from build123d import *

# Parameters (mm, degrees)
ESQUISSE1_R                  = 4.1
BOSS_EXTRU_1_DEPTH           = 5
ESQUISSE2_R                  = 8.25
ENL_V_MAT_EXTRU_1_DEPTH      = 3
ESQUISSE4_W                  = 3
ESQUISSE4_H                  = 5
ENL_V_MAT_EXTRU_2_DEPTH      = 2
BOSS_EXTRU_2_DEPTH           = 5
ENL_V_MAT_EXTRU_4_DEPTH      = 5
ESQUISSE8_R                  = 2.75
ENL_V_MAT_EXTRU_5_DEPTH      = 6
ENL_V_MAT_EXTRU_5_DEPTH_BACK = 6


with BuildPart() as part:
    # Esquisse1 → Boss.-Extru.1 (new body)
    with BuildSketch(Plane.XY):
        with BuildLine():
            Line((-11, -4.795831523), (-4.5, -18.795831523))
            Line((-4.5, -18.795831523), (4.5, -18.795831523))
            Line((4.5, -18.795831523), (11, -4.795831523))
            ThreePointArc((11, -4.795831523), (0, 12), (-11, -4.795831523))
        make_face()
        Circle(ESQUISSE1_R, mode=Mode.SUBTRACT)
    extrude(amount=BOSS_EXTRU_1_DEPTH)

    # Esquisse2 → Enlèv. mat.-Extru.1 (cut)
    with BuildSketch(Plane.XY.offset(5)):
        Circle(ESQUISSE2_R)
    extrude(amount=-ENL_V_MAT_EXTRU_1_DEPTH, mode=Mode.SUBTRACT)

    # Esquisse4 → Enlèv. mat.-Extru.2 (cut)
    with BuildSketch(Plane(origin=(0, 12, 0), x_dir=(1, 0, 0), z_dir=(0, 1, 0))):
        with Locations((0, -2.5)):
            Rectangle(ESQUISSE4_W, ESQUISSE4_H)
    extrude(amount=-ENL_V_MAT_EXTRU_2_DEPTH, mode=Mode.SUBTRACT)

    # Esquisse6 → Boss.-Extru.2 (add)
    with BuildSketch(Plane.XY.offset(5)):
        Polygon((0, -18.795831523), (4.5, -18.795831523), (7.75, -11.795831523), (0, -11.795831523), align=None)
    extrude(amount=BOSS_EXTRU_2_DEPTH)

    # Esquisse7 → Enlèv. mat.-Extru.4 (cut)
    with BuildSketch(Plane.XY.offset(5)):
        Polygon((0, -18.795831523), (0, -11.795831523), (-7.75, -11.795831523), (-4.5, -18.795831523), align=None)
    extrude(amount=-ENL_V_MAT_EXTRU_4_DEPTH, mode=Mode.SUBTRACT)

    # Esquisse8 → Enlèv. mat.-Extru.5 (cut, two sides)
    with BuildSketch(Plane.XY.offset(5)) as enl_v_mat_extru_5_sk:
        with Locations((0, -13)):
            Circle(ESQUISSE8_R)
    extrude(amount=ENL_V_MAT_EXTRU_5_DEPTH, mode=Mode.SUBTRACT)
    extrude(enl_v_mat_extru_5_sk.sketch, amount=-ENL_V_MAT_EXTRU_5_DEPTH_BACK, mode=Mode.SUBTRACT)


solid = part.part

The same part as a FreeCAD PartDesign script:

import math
import FreeCAD as App
import Part
import Sketcher
from FreeCAD import Vector


def add_polygon(sketch, points):
    """Adds a closed chain of lines whose ends are joined by coincident constraints."""
    first, n = sketch.GeometryCount, len(points)
    for a, b in zip(points, points[1:] + points[:1]):
        sketch.addGeometry(Part.LineSegment(App.Vector(*a, 0), App.Vector(*b, 0)), False)
    for i in range(n):
        sketch.addConstraint(Sketcher.Constraint("Coincident", first + i, 2, first + (i + 1) % n, 1))

doc = App.newDocument("Part")
body = doc.addObject("PartDesign::Body", "Body")

sketch1 = body.newObject("Sketcher::SketchObject", "Sketch")
sketch1.AttachmentSupport = (doc.getObject("XY_Plane"), [""])
sketch1.MapMode = "FlatFace"
sketch1.addGeometry([
    Part.LineSegment(Vector(-11, -4.8, 0), Vector(-4.5, -18.8, 0)),
    Part.LineSegment(Vector(-4.5, -18.8, 0), Vector(4.5, -18.8, 0)),
    Part.LineSegment(Vector(4.5, -18.8, 0), Vector(11, -4.8, 0)),
    Part.ArcOfCircle(Part.Circle(Vector(0, 0, 0), Vector(0, 0, 1), 12), math.radians(-24), math.radians(204)),
    Part.Circle(Vector(0, 0, 0), Vector(0, 0, 1), 4.1),
], False)
sketch1.addConstraint([
    Sketcher.Constraint("Coincident", 0, 2, 1, 1),
    Sketcher.Constraint("Coincident", 1, 2, 2, 1),
    Sketcher.Constraint("Coincident", 2, 2, 3, 1),
    Sketcher.Constraint("Coincident", 3, 2, 0, 1),
    Sketcher.Constraint("Horizontal", 1),
    Sketcher.Constraint("Coincident", 3, 3, -1, 1),
    Sketcher.Constraint("Coincident", 4, 3, -1, 1),
    Sketcher.Constraint("Horizontal", 2, 2, 3, 2),
    Sketcher.Constraint("Equal", 0, 2),
    Sketcher.Constraint("Radius", 3, 12.0),
    Sketcher.Constraint("Diameter", 4, 8.2),
    Sketcher.Constraint("DistanceX", 1, 1, 1, 2, 9.0),
    Sketcher.Constraint("DistanceX", -1, 1, 2, 2, 11.0),
    Sketcher.Constraint("DistanceY", 1, 2, 2, 2, 14.0),
])
pad1 = body.newObject("PartDesign::Pad", "Pad")
pad1.Profile = sketch1
pad1.Length = 5

sketch2 = body.newObject("Sketcher::SketchObject", "Sketch001")
sketch2.AttachmentSupport = (doc.getObject("XY_Plane"), [""])
sketch2.MapMode = "FlatFace"
sketch2.AttachmentOffset = App.Placement(Vector(0, 0, 5), App.Rotation())
sketch2.addGeometry(Part.Circle(Vector(0, 0, 0), Vector(0, 0, 1), 8), False)
sketch2.addConstraint([
    Sketcher.Constraint("Coincident", 0, 3, -1, 1),
    Sketcher.Constraint("Diameter", 0, 16.5),
])
pocket1 = body.newObject("PartDesign::Pocket", "Pocket")
pocket1.Profile = sketch2
pocket1.Length = 3

sketch3 = body.newObject("Sketcher::SketchObject", "Sketch002")
sketch3.AttachmentSupport = (doc.getObject("XZ_Plane"), [""])
sketch3.MapMode = "FlatFace"
sketch3.AttachmentOffset = App.Placement(Vector(0, 0, -12), App.Rotation())
add_polygon(sketch3, [(-1.5, 0), (-1.5, 5), (1.5, 5), (1.5, 0)])
sketch3.addConstraint([
    Sketcher.Constraint("Vertical", 0),
    Sketcher.Constraint("Horizontal", 1),
    Sketcher.Constraint("Vertical", 2),
    Sketcher.Constraint("Horizontal", 3),
    Sketcher.Constraint("Symmetric", 2, 2, 3, 2, -1, 1),
    Sketcher.Constraint("DistanceX", 1, 1, 1, 2, 3.0),
    Sketcher.Constraint("DistanceY", 0, 1, 0, 2, 5.0),
])
pocket2 = body.newObject("PartDesign::Pocket", "Pocket001")
pocket2.Profile = sketch3
pocket2.Length = 2
pocket2.Reversed = True

sketch4 = body.newObject("Sketcher::SketchObject", "Sketch003")
sketch4.AttachmentSupport = (doc.getObject("XY_Plane"), [""])
sketch4.MapMode = "FlatFace"
sketch4.AttachmentOffset = App.Placement(Vector(0, 0, 5), App.Rotation())
add_polygon(sketch4, [(0, -18.8), (4.5, -18.8), (7.8, -11.8), (0, -11.8)])
sketch4.addConstraint([
    Sketcher.Constraint("Horizontal", 0),
    Sketcher.Constraint("Horizontal", 2),
    Sketcher.Constraint("Vertical", 3),
    Sketcher.Constraint("PointOnObject", 2, 2, -2),
    Sketcher.Constraint("DistanceY", 3, 2, 3, 1, 7.0),
    Sketcher.Constraint("DistanceX", 0, 1, 0, 2, 4.5),
    Sketcher.Constraint("DistanceX", 2, 2, 2, 1, 7.75),
    Sketcher.Constraint("DistanceY", 0, 2, -1, 1, 18.795832),
])
pad2 = body.newObject("PartDesign::Pad", "Pad001")
pad2.Profile = sketch4
pad2.Length = 5

sketch5 = body.newObject("Sketcher::SketchObject", "Sketch004")
sketch5.AttachmentSupport = (doc.getObject("XY_Plane"), [""])
sketch5.MapMode = "FlatFace"
sketch5.AttachmentOffset = App.Placement(Vector(0, 0, 5), App.Rotation())
add_polygon(sketch5, [(0, -18.8), (0, -11.8), (-7.8, -11.8), (-4.5, -18.8)])
sketch5.addConstraint([
    Sketcher.Constraint("Vertical", 0),
    Sketcher.Constraint("Horizontal", 1),
    Sketcher.Constraint("Horizontal", 3),
    Sketcher.Constraint("PointOnObject", 0, 2, -2),
    Sketcher.Constraint("DistanceY", 0, 1, 0, 2, 7.0),
    Sketcher.Constraint("DistanceX", 3, 1, 3, 2, 4.5),
    Sketcher.Constraint("DistanceX", 1, 2, 1, 1, 7.75),
    Sketcher.Constraint("DistanceY", 0, 2, -1, 1, 11.795832),
])
pocket3 = body.newObject("PartDesign::Pocket", "Pocket002")
pocket3.Profile = sketch5
pocket3.Length = 5

sketch6 = body.newObject("Sketcher::SketchObject", "Sketch005")
sketch6.AttachmentSupport = (doc.getObject("XY_Plane"), [""])
sketch6.MapMode = "FlatFace"
sketch6.AttachmentOffset = App.Placement(Vector(0, 0, 5), App.Rotation())
sketch6.addGeometry(Part.Circle(Vector(0, -13, 0), Vector(0, 0, 1), 2.8), False)
sketch6.addConstraint([
    Sketcher.Constraint("PointOnObject", 0, 3, -2),
    Sketcher.Constraint("Diameter", 0, 5.5),
    Sketcher.Constraint("DistanceY", 0, 3, -1, 1, 13.0),
])
pocket4 = body.newObject("PartDesign::Pocket", "Pocket003")
pocket4.Profile = sketch6
pocket4.Type = "ThroughAll"
pocket4.Midplane = True

doc.recompute()
